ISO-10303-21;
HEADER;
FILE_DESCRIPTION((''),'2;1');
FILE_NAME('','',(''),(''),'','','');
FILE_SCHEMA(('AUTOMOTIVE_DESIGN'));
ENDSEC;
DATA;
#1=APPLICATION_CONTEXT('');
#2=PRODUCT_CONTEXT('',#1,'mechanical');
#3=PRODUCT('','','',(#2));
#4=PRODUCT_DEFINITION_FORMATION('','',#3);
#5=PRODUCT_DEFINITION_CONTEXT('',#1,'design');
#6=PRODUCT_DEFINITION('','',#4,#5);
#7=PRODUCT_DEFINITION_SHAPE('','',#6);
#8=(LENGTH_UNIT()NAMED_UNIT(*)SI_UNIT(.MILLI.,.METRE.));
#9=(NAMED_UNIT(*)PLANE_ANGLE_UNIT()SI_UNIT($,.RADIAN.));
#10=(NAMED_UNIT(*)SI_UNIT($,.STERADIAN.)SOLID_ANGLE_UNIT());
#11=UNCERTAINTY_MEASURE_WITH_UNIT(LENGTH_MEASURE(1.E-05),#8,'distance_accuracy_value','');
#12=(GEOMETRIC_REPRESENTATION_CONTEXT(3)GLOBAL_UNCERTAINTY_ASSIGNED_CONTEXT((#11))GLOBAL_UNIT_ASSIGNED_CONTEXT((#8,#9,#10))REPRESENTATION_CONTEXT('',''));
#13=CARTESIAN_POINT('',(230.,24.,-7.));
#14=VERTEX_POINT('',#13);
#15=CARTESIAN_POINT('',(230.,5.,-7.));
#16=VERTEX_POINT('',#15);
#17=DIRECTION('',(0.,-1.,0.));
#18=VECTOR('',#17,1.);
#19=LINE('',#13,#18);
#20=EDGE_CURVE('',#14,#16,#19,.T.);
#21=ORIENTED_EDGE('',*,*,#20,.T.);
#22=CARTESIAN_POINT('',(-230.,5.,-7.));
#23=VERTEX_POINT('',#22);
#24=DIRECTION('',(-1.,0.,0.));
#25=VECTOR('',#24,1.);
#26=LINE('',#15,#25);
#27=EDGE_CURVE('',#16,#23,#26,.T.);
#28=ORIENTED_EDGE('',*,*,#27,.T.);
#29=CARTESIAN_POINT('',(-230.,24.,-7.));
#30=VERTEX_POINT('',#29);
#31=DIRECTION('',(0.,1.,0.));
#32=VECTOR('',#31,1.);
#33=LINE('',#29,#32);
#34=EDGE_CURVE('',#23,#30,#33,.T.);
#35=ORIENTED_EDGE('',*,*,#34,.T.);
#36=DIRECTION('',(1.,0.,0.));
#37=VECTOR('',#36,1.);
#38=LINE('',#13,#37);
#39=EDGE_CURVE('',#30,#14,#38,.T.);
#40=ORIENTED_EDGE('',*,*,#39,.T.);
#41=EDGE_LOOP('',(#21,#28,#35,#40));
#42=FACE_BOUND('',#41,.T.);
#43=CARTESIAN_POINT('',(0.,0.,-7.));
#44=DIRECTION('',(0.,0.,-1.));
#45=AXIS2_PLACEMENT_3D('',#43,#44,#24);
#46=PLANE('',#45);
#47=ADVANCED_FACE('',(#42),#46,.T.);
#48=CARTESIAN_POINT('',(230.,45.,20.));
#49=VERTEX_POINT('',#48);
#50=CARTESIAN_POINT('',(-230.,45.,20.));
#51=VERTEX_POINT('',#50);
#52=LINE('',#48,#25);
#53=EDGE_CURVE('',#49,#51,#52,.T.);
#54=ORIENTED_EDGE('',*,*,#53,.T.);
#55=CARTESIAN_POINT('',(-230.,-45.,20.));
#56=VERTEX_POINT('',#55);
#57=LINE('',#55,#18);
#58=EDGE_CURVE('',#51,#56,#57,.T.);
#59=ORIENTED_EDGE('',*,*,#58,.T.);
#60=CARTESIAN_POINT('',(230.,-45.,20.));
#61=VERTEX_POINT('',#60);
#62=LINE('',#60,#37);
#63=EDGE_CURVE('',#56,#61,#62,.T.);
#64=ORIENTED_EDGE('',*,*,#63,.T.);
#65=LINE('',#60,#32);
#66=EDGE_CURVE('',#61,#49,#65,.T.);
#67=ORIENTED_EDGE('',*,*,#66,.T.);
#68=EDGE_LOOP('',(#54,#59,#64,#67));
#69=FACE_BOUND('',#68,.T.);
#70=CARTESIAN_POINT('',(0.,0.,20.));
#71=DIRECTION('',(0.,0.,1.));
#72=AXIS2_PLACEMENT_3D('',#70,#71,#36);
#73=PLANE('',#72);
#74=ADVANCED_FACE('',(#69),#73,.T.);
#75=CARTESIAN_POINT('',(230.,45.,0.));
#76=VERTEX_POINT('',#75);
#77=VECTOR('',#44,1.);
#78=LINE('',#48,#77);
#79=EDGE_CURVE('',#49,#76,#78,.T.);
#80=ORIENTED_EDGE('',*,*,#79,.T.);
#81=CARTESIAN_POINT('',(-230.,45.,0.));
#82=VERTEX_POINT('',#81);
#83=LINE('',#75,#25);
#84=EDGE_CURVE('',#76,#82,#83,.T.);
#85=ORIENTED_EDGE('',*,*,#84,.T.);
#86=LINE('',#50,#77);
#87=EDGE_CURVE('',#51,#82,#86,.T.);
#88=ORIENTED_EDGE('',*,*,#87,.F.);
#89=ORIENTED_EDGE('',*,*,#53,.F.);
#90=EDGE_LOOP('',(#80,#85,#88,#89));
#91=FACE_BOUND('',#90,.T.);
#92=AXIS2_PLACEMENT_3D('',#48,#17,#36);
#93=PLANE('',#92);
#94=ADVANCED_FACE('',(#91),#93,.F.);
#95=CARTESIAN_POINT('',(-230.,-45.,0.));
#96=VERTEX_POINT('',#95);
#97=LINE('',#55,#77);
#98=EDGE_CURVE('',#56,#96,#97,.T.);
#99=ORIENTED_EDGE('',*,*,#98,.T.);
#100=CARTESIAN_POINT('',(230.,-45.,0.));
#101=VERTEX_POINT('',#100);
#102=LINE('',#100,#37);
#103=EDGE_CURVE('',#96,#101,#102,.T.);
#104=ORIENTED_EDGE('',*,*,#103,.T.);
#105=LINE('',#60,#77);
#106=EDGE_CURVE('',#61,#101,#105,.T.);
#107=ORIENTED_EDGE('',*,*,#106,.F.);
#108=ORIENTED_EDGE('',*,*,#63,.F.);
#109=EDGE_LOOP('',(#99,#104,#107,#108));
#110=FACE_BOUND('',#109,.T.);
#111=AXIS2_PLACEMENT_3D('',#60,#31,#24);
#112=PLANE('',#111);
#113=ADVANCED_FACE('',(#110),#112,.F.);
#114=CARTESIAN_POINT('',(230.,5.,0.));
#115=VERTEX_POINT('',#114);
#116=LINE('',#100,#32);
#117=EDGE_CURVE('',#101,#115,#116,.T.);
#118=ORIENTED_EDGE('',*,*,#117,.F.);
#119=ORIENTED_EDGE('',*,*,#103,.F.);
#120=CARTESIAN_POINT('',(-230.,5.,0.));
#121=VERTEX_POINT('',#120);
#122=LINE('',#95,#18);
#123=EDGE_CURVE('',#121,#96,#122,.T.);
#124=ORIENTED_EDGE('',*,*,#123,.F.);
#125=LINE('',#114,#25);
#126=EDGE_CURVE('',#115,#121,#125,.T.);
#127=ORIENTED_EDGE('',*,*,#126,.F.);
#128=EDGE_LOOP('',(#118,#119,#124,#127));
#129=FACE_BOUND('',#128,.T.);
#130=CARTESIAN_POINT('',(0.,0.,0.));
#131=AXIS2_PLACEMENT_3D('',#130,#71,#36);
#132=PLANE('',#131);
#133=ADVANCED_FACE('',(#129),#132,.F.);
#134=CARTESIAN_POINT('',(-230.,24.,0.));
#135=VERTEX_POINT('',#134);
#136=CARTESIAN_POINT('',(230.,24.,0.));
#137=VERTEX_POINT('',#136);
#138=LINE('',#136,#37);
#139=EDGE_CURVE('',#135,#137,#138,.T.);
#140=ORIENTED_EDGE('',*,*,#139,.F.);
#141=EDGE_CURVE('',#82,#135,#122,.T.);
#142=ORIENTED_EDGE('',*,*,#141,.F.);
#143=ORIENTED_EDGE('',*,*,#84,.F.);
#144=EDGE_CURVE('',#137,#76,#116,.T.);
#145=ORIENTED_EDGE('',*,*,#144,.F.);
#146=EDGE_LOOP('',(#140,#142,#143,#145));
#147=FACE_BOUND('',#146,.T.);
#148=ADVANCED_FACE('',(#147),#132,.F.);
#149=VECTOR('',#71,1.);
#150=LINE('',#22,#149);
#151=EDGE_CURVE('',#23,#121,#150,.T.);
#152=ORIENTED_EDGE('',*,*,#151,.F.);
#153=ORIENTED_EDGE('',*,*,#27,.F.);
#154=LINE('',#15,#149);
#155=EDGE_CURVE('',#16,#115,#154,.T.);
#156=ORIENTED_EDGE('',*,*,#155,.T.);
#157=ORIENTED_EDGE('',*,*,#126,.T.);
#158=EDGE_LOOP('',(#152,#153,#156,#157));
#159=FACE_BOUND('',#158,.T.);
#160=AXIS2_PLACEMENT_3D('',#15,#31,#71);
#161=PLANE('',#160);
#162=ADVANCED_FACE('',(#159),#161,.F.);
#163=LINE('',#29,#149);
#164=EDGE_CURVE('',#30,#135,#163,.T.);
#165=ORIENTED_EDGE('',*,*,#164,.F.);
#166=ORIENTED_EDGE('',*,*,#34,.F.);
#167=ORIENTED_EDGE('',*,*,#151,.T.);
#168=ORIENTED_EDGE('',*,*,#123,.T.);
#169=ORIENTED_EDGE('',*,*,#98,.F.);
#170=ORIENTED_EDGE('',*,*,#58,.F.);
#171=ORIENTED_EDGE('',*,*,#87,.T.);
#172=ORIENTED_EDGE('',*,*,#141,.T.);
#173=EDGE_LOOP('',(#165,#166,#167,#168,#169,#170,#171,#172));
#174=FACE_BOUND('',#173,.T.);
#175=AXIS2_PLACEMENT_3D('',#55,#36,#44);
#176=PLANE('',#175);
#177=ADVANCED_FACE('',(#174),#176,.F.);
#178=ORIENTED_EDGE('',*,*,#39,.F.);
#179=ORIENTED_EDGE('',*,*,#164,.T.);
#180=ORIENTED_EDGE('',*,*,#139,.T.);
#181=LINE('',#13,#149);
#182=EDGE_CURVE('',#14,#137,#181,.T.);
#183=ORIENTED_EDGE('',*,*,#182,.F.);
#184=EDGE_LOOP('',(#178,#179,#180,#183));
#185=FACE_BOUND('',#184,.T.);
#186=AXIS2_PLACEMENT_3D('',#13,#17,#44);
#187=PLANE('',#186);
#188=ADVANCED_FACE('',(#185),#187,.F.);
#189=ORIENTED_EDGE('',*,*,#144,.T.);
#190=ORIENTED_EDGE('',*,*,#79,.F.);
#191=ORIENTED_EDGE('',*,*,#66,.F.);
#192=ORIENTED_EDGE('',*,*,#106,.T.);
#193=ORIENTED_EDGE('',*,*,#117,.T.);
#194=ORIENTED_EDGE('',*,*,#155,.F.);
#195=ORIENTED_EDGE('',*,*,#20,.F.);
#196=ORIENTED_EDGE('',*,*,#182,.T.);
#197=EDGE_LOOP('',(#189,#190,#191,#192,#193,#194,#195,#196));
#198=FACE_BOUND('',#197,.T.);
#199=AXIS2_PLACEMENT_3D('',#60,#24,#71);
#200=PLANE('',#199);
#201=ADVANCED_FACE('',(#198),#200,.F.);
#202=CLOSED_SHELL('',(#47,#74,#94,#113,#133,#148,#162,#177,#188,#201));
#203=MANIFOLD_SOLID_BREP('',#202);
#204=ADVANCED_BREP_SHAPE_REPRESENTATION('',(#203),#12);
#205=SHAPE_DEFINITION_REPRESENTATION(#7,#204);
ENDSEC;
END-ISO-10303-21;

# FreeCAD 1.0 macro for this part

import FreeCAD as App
import Part
import Sketcher
from FreeCAD import Vector
Q = App.Units.Quantity

doc = App.newDocument("Part")
body = doc.addObject("PartDesign::Body", "Body")

# Sketch on XY plane
sketch1 = body.newObject("Sketcher::SketchObject", "Sketch")
sketch1.AttachmentSupport = (doc.getObject("XY_Plane"), [""])
sketch1.MapMode = "FlatFace"
sketch1.addGeometry([
    Part.LineSegment(Vector(-230, 45, 0), Vector(-230, -45, 0)),
    Part.LineSegment(Vector(-230, -45, 0), Vector(230, -45, 0)),
    Part.LineSegment(Vector(230, -45, 0), Vector(230, 45, 0)),
    Part.LineSegment(Vector(230, 45, 0), Vector(-230, 45, 0)),
], False)
sketch1.addConstraint([
    Sketcher.Constraint("Coincident", 0, 2, 1, 1),
    Sketcher.Constraint("Coincident", 1, 2, 2, 1),
    Sketcher.Constraint("Coincident", 2, 2, 3, 1),
    Sketcher.Constraint("Coincident", 3, 2, 0, 1),
    Sketcher.Constraint("Vertical", 0),
    Sketcher.Constraint("Horizontal", 1),
    Sketcher.Constraint("Vertical", 2),
    Sketcher.Constraint("Horizontal", 3),
    Sketcher.Constraint("Symmetric", 0, 2, 2, 2, -1, 1),
    Sketcher.Constraint("DistanceX", 1, 1, 1, 2, Q("460 mm")),
    Sketcher.Constraint("DistanceY", 0, 2, 0, 1, Q("90 mm")),
])
pad1 = body.newObject("PartDesign::Pad", "Pad")
pad1.Profile = sketch1
pad1.Length = 20

# Sketch on XY plane
sketch2 = body.newObject("Sketcher::SketchObject", "Sketch001")
sketch2.AttachmentSupport = (doc.getObject("XY_Plane"), [""])
sketch2.MapMode = "FlatFace"
sketch2.addGeometry([
    Part.LineSegment(Vector(230, 24, 0), Vector(230, 5, 0)),
    Part.LineSegment(Vector(230, 5, 0), Vector(-230, 5, 0)),
    Part.LineSegment(Vector(-230, 5, 0), Vector(-230, 24, 0)),
    Part.LineSegment(Vector(-230, 24, 0), Vector(230, 24, 0)),
], False)
sketch2.addConstraint([
    Sketcher.Constraint("Coincident", 0, 2, 1, 1),
    Sketcher.Constraint("Coincident", 1, 2, 2, 1),
    Sketcher.Constraint("Coincident", 2, 2, 3, 1),
    Sketcher.Constraint("Coincident", 3, 2, 0, 1),
    Sketcher.Constraint("Vertical", 0),
    Sketcher.Constraint("Horizontal", 1),
    Sketcher.Constraint("Vertical", 2),
    Sketcher.Constraint("Horizontal", 3),
    Sketcher.Constraint("DistanceX", 1, 2, 1, 1, Q("460 mm")),
    Sketcher.Constraint("DistanceY", 0, 2, 0, 1, Q("19 mm")),
    Sketcher.Constraint("DistanceX", -1, 1, 0, 2, Q("230 mm")),
    Sketcher.Constraint("DistanceY", -1, 1, 0, 2, Q("5 mm")),
])
pad2 = body.newObject("PartDesign::Pad", "Pad001")
pad2.Profile = sketch2
pad2.Length = 7
pad2.Reversed = True

doc.recompute()
